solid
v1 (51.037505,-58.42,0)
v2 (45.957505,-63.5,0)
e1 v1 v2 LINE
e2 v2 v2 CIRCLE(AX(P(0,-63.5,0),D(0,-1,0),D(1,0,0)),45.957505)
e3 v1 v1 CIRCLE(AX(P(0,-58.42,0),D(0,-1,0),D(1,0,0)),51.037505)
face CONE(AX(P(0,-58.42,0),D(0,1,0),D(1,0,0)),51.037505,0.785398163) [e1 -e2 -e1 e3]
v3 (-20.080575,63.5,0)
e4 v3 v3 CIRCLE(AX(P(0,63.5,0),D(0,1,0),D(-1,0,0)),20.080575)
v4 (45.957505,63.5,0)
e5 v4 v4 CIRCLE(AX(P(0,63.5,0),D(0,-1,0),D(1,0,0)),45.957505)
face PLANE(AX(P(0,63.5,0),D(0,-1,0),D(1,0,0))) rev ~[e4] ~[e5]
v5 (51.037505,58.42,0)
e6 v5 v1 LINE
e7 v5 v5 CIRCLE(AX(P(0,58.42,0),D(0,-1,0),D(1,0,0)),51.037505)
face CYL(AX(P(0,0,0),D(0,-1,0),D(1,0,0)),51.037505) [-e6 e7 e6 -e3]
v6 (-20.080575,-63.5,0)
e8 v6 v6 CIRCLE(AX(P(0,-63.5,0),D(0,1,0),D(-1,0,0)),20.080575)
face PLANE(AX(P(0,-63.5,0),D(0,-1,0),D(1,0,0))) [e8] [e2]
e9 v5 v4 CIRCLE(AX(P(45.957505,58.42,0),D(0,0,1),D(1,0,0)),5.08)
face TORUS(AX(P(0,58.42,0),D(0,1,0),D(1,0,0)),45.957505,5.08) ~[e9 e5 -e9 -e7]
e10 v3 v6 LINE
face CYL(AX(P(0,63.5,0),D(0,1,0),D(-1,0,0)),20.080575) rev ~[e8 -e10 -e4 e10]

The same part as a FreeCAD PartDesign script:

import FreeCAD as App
import Part
import Sketcher
Q = App.Units.Quantity


def edges_at(feature, points):
    """Names of the edges that pass closest to the given points."""
    edges = feature.Shape.Edges
    near = lambda p: min(range(len(edges)), key=lambda i: edges[i].distToShape(Part.Vertex(*p))[0])
    return sorted({f"Edge{near(p) + 1}" for p in points})

doc = App.newDocument("Part")
params = doc.addObject("Spreadsheet::Sheet", "Params")
for row, (alias, value) in enumerate([
    ("pad1_length", "5 in"),
    ("chamfer_size", "0.2 in"),
    ("fillet_radius", "0.2 in"),
], start=1):
    params.set(f"A{row}", alias)
    params.set(f"B{row}", "=" + value)
    params.setAlias(f"B{row}", alias)

body = doc.addObject("PartDesign::Body", "Body")

# Sketch on XZ plane
sketch1 = body.newObject("Sketcher::SketchObject", "Sketch")
sketch1.AttachmentSupport = (doc.getObject("XZ_Plane"), [""])
sketch1.MapMode = "FlatFace"
sketch1.addGeometry(Part.Circle(App.Vector(0, 0, 0), App.Vector(0, 0, 1), 51), False)
sketch1.addConstraint(Sketcher.Constraint("Coincident", 0, 3, -1, 1))
sketch1.addConstraint(Sketcher.Constraint("Diameter", 0, Q("102.07501 mm")))
pad1 = body.newObject("PartDesign::Pad", "Pad")
pad1.Profile = sketch1
pad1.setExpression("Length", "Params.pad1_length")
pad1.Midplane = True
doc.recompute()

chamfer = body.newObject("PartDesign::Chamfer", "Chamfer")
chamfer.Base = (pad1, edges_at(pad1, [(-51.038, -63.5, 0)]))
chamfer.setExpression("Size", "Params.chamfer_size")
doc.recompute()

fillet = body.newObject("PartDesign::Fillet", "Fillet")
fillet.Base = (chamfer, edges_at(chamfer, [(-51.038, 63.5, 0)]))
fillet.setExpression("Radius", "Params.fillet_radius")

# Sketch on XZ plane
sketch2 = body.newObject("Sketcher::SketchObject", "Sketch001")
sketch2.AttachmentSupport = (doc.getObject("XZ_Plane"), [""])
sketch2.MapMode = "FlatFace"
sketch2.AttachmentOffset = App.Placement(App.Vector(0, 0, -2.5 * 25.4), App.Rotation())
sketch2.addGeometry(Part.Circle(App.Vector(0, 0, 0), App.Vector(0, 0, 1), 20), False)
sketch2.addConstraint(Sketcher.Constraint("Coincident", 0, 3, -1, 1))
sketch2.addConstraint(Sketcher.Constraint("Diameter", 0, Q("40.16115 mm")))
pocket1 = body.newObject("PartDesign::Pocket", "Pocket")
pocket1.Profile = sketch2
pocket1.Type = "ThroughAll"
pocket1.Reversed = True

doc.recompute()
